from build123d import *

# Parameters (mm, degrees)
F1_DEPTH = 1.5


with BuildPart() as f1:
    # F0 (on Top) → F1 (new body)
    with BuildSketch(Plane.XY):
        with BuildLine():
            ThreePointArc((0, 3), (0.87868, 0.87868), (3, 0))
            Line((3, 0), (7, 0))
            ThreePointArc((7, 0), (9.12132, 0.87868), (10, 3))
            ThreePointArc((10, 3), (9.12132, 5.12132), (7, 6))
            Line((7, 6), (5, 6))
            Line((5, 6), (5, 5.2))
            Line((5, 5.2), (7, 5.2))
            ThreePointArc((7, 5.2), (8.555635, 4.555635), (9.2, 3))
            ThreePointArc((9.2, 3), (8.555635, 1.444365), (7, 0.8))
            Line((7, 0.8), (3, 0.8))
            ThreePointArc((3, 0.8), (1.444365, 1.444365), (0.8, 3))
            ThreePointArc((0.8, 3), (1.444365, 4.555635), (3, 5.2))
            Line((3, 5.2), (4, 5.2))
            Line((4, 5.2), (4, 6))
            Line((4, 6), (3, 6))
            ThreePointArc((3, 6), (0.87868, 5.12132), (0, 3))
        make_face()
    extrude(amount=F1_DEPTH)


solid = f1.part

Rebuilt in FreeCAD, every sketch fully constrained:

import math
import FreeCAD as App
import Part
import Sketcher
Q = App.Units.Quantity

doc = App.newDocument("Part")
body = doc.addObject("PartDesign::Body", "Body")

# Sketch on XY plane
sketch1 = doc.addObject("Sketcher::SketchObject", "Sketch")
body.addObject(sketch1)
sketch1.AttachmentSupport = (doc.XY_Plane, [""])
sketch1.MapMode = "FlatFace"
sketch1.addGeometry([
    Part.ArcOfCircle(Part.Circle(App.Vector(3.000001, 3.000001, 0), App.Vector(0, 0, 1), 3.000001), math.radians(-179.999978), math.radians(-90.000022)),  # 0
    Part.LineSegment(App.Vector(3, 0, 0), App.Vector(7, 0, 0)),  # 1
    Part.ArcOfCircle(Part.Circle(App.Vector(6.999999, 3.000001, 0), App.Vector(0, 0, 1), 3.000001), math.radians(-89.999978), math.radians(-0.000022)),  # 2
    Part.ArcOfCircle(Part.Circle(App.Vector(6.999999, 2.999999, 0), App.Vector(0, 0, 1), 3.000001), math.radians(0.000022), math.radians(89.999978)),  # 3
    Part.LineSegment(App.Vector(7, 6, 0), App.Vector(5, 6, 0)),  # 4
    Part.LineSegment(App.Vector(5, 6, 0), App.Vector(5, 5.2, 0)),  # 5
    Part.LineSegment(App.Vector(5, 5.2, 0), App.Vector(7, 5.2, 0)),  # 6
    Part.ArcOfCircle(Part.Circle(App.Vector(7, 3, 0), App.Vector(0, 0, 1), 2.2), math.radians(-0.000007), math.radians(90.000007)),  # 7
    Part.ArcOfCircle(Part.Circle(App.Vector(7, 3, 0), App.Vector(0, 0, 1), 2.2), math.radians(-90.000007), math.radians(0.000007)),  # 8
    Part.LineSegment(App.Vector(7, 0.8, 0), App.Vector(3, 0.8, 0)),  # 9
    Part.ArcOfCircle(Part.Circle(App.Vector(3, 3, 0), App.Vector(0, 0, 1), 2.2), math.radians(179.999993), math.radians(270.000007)),  # 10
    Part.ArcOfCircle(Part.Circle(App.Vector(3, 3, 0), App.Vector(0, 0, 1), 2.2), math.radians(89.999993), math.radians(180.000007)),  # 11
    Part.LineSegment(App.Vector(3, 5.2, 0), App.Vector(4, 5.2, 0)),  # 12
    Part.LineSegment(App.Vector(4, 5.2, 0), App.Vector(4, 6, 0)),  # 13
    Part.LineSegment(App.Vector(4, 6, 0), App.Vector(3, 6, 0)),  # 14
    Part.ArcOfCircle(Part.Circle(App.Vector(3.000001, 2.999999, 0), App.Vector(0, 0, 1), 3.000001), math.radians(90.000022), math.radians(179.999978)),  # 15
], False)
sketch1.addConstraint([
    Sketcher.Constraint("Tangent", 0, 2, 1, 1),
    Sketcher.Constraint("Tangent", 1, 2, 2, 1),
    Sketcher.Constraint("Tangent", 2, 2, 3, 1),
    Sketcher.Constraint("Tangent", 3, 2, 4, 1),
    Sketcher.Constraint("Coincident", 4, 2, 5, 1),
    Sketcher.Constraint("Coincident", 5, 2, 6, 1),
    Sketcher.Constraint("Tangent", 6, 2, 7, 2),
    Sketcher.Constraint("Tangent", 7, 1, 8, 2),
    Sketcher.Constraint("Tangent", 8, 1, 9, 1),
    Sketcher.Constraint("Tangent", 9, 2, 10, 2),
    Sketcher.Constraint("Tangent", 10, 1, 11, 2),
    Sketcher.Constraint("Tangent", 11, 1, 12, 1),
    Sketcher.Constraint("Coincident", 12, 2, 13, 1),
    Sketcher.Constraint("Coincident", 13, 2, 14, 1),
    Sketcher.Constraint("Tangent", 14, 2, 15, 1),
    Sketcher.Constraint("Tangent", 15, 2, 0, 1),
    Sketcher.Constraint("Horizontal", 1),
    Sketcher.Constraint("Horizontal", 4),
    Sketcher.Constraint("Vertical", 5),
    Sketcher.Constraint("Horizontal", 6),
    Sketcher.Constraint("Horizontal", 9),
    Sketcher.Constraint("Horizontal", 12),
    Sketcher.Constraint("Vertical", 13),
    Sketcher.Constraint("Horizontal", 14),
    Sketcher.Constraint("Coincident", 7, 3, 2, 3),
    Sketcher.Constraint("Coincident", 10, 3, 0, 3),
    Sketcher.Constraint("Equal", 0, 2),
    Sketcher.Constraint("Equal", 2, 3),
    Sketcher.Constraint("Equal", 7, 8),
    Sketcher.Constraint("Equal", 10, 11),
    Sketcher.Constraint("Equal", 3, 15),
    Sketcher.Constraint("PointOnObject", 0, 2, -1),
    Sketcher.Constraint("PointOnObject", 15, 2, -2),
    Sketcher.Constraint("Horizontal", 15, 3, 2, 2),
    Sketcher.Constraint("Horizontal", 2, 2, 7, 1),
    Sketcher.Constraint("Horizontal", 7, 1, 10, 1),
    Sketcher.Constraint("Horizontal", 10, 1, 15, 2),
    Sketcher.Constraint("Radius", 0, Q("3.000001 mm")),
    Sketcher.Constraint("Radius", 7, Q("2.2 mm")),
    Sketcher.Constraint("DistanceX", 1, 1, 1, 2, Q("4 mm")),
    Sketcher.Constraint("DistanceX", 4, 2, 4, 1, Q("2 mm")),
    Sketcher.Constraint("DistanceX", 12, 1, 12, 2, Q("1 mm")),
])
pad1 = doc.addObject("PartDesign::Pad", "Pad")
body.addObject(pad1)
pad1.Profile = sketch1
pad1.Length = 1.5

doc.recompute()
